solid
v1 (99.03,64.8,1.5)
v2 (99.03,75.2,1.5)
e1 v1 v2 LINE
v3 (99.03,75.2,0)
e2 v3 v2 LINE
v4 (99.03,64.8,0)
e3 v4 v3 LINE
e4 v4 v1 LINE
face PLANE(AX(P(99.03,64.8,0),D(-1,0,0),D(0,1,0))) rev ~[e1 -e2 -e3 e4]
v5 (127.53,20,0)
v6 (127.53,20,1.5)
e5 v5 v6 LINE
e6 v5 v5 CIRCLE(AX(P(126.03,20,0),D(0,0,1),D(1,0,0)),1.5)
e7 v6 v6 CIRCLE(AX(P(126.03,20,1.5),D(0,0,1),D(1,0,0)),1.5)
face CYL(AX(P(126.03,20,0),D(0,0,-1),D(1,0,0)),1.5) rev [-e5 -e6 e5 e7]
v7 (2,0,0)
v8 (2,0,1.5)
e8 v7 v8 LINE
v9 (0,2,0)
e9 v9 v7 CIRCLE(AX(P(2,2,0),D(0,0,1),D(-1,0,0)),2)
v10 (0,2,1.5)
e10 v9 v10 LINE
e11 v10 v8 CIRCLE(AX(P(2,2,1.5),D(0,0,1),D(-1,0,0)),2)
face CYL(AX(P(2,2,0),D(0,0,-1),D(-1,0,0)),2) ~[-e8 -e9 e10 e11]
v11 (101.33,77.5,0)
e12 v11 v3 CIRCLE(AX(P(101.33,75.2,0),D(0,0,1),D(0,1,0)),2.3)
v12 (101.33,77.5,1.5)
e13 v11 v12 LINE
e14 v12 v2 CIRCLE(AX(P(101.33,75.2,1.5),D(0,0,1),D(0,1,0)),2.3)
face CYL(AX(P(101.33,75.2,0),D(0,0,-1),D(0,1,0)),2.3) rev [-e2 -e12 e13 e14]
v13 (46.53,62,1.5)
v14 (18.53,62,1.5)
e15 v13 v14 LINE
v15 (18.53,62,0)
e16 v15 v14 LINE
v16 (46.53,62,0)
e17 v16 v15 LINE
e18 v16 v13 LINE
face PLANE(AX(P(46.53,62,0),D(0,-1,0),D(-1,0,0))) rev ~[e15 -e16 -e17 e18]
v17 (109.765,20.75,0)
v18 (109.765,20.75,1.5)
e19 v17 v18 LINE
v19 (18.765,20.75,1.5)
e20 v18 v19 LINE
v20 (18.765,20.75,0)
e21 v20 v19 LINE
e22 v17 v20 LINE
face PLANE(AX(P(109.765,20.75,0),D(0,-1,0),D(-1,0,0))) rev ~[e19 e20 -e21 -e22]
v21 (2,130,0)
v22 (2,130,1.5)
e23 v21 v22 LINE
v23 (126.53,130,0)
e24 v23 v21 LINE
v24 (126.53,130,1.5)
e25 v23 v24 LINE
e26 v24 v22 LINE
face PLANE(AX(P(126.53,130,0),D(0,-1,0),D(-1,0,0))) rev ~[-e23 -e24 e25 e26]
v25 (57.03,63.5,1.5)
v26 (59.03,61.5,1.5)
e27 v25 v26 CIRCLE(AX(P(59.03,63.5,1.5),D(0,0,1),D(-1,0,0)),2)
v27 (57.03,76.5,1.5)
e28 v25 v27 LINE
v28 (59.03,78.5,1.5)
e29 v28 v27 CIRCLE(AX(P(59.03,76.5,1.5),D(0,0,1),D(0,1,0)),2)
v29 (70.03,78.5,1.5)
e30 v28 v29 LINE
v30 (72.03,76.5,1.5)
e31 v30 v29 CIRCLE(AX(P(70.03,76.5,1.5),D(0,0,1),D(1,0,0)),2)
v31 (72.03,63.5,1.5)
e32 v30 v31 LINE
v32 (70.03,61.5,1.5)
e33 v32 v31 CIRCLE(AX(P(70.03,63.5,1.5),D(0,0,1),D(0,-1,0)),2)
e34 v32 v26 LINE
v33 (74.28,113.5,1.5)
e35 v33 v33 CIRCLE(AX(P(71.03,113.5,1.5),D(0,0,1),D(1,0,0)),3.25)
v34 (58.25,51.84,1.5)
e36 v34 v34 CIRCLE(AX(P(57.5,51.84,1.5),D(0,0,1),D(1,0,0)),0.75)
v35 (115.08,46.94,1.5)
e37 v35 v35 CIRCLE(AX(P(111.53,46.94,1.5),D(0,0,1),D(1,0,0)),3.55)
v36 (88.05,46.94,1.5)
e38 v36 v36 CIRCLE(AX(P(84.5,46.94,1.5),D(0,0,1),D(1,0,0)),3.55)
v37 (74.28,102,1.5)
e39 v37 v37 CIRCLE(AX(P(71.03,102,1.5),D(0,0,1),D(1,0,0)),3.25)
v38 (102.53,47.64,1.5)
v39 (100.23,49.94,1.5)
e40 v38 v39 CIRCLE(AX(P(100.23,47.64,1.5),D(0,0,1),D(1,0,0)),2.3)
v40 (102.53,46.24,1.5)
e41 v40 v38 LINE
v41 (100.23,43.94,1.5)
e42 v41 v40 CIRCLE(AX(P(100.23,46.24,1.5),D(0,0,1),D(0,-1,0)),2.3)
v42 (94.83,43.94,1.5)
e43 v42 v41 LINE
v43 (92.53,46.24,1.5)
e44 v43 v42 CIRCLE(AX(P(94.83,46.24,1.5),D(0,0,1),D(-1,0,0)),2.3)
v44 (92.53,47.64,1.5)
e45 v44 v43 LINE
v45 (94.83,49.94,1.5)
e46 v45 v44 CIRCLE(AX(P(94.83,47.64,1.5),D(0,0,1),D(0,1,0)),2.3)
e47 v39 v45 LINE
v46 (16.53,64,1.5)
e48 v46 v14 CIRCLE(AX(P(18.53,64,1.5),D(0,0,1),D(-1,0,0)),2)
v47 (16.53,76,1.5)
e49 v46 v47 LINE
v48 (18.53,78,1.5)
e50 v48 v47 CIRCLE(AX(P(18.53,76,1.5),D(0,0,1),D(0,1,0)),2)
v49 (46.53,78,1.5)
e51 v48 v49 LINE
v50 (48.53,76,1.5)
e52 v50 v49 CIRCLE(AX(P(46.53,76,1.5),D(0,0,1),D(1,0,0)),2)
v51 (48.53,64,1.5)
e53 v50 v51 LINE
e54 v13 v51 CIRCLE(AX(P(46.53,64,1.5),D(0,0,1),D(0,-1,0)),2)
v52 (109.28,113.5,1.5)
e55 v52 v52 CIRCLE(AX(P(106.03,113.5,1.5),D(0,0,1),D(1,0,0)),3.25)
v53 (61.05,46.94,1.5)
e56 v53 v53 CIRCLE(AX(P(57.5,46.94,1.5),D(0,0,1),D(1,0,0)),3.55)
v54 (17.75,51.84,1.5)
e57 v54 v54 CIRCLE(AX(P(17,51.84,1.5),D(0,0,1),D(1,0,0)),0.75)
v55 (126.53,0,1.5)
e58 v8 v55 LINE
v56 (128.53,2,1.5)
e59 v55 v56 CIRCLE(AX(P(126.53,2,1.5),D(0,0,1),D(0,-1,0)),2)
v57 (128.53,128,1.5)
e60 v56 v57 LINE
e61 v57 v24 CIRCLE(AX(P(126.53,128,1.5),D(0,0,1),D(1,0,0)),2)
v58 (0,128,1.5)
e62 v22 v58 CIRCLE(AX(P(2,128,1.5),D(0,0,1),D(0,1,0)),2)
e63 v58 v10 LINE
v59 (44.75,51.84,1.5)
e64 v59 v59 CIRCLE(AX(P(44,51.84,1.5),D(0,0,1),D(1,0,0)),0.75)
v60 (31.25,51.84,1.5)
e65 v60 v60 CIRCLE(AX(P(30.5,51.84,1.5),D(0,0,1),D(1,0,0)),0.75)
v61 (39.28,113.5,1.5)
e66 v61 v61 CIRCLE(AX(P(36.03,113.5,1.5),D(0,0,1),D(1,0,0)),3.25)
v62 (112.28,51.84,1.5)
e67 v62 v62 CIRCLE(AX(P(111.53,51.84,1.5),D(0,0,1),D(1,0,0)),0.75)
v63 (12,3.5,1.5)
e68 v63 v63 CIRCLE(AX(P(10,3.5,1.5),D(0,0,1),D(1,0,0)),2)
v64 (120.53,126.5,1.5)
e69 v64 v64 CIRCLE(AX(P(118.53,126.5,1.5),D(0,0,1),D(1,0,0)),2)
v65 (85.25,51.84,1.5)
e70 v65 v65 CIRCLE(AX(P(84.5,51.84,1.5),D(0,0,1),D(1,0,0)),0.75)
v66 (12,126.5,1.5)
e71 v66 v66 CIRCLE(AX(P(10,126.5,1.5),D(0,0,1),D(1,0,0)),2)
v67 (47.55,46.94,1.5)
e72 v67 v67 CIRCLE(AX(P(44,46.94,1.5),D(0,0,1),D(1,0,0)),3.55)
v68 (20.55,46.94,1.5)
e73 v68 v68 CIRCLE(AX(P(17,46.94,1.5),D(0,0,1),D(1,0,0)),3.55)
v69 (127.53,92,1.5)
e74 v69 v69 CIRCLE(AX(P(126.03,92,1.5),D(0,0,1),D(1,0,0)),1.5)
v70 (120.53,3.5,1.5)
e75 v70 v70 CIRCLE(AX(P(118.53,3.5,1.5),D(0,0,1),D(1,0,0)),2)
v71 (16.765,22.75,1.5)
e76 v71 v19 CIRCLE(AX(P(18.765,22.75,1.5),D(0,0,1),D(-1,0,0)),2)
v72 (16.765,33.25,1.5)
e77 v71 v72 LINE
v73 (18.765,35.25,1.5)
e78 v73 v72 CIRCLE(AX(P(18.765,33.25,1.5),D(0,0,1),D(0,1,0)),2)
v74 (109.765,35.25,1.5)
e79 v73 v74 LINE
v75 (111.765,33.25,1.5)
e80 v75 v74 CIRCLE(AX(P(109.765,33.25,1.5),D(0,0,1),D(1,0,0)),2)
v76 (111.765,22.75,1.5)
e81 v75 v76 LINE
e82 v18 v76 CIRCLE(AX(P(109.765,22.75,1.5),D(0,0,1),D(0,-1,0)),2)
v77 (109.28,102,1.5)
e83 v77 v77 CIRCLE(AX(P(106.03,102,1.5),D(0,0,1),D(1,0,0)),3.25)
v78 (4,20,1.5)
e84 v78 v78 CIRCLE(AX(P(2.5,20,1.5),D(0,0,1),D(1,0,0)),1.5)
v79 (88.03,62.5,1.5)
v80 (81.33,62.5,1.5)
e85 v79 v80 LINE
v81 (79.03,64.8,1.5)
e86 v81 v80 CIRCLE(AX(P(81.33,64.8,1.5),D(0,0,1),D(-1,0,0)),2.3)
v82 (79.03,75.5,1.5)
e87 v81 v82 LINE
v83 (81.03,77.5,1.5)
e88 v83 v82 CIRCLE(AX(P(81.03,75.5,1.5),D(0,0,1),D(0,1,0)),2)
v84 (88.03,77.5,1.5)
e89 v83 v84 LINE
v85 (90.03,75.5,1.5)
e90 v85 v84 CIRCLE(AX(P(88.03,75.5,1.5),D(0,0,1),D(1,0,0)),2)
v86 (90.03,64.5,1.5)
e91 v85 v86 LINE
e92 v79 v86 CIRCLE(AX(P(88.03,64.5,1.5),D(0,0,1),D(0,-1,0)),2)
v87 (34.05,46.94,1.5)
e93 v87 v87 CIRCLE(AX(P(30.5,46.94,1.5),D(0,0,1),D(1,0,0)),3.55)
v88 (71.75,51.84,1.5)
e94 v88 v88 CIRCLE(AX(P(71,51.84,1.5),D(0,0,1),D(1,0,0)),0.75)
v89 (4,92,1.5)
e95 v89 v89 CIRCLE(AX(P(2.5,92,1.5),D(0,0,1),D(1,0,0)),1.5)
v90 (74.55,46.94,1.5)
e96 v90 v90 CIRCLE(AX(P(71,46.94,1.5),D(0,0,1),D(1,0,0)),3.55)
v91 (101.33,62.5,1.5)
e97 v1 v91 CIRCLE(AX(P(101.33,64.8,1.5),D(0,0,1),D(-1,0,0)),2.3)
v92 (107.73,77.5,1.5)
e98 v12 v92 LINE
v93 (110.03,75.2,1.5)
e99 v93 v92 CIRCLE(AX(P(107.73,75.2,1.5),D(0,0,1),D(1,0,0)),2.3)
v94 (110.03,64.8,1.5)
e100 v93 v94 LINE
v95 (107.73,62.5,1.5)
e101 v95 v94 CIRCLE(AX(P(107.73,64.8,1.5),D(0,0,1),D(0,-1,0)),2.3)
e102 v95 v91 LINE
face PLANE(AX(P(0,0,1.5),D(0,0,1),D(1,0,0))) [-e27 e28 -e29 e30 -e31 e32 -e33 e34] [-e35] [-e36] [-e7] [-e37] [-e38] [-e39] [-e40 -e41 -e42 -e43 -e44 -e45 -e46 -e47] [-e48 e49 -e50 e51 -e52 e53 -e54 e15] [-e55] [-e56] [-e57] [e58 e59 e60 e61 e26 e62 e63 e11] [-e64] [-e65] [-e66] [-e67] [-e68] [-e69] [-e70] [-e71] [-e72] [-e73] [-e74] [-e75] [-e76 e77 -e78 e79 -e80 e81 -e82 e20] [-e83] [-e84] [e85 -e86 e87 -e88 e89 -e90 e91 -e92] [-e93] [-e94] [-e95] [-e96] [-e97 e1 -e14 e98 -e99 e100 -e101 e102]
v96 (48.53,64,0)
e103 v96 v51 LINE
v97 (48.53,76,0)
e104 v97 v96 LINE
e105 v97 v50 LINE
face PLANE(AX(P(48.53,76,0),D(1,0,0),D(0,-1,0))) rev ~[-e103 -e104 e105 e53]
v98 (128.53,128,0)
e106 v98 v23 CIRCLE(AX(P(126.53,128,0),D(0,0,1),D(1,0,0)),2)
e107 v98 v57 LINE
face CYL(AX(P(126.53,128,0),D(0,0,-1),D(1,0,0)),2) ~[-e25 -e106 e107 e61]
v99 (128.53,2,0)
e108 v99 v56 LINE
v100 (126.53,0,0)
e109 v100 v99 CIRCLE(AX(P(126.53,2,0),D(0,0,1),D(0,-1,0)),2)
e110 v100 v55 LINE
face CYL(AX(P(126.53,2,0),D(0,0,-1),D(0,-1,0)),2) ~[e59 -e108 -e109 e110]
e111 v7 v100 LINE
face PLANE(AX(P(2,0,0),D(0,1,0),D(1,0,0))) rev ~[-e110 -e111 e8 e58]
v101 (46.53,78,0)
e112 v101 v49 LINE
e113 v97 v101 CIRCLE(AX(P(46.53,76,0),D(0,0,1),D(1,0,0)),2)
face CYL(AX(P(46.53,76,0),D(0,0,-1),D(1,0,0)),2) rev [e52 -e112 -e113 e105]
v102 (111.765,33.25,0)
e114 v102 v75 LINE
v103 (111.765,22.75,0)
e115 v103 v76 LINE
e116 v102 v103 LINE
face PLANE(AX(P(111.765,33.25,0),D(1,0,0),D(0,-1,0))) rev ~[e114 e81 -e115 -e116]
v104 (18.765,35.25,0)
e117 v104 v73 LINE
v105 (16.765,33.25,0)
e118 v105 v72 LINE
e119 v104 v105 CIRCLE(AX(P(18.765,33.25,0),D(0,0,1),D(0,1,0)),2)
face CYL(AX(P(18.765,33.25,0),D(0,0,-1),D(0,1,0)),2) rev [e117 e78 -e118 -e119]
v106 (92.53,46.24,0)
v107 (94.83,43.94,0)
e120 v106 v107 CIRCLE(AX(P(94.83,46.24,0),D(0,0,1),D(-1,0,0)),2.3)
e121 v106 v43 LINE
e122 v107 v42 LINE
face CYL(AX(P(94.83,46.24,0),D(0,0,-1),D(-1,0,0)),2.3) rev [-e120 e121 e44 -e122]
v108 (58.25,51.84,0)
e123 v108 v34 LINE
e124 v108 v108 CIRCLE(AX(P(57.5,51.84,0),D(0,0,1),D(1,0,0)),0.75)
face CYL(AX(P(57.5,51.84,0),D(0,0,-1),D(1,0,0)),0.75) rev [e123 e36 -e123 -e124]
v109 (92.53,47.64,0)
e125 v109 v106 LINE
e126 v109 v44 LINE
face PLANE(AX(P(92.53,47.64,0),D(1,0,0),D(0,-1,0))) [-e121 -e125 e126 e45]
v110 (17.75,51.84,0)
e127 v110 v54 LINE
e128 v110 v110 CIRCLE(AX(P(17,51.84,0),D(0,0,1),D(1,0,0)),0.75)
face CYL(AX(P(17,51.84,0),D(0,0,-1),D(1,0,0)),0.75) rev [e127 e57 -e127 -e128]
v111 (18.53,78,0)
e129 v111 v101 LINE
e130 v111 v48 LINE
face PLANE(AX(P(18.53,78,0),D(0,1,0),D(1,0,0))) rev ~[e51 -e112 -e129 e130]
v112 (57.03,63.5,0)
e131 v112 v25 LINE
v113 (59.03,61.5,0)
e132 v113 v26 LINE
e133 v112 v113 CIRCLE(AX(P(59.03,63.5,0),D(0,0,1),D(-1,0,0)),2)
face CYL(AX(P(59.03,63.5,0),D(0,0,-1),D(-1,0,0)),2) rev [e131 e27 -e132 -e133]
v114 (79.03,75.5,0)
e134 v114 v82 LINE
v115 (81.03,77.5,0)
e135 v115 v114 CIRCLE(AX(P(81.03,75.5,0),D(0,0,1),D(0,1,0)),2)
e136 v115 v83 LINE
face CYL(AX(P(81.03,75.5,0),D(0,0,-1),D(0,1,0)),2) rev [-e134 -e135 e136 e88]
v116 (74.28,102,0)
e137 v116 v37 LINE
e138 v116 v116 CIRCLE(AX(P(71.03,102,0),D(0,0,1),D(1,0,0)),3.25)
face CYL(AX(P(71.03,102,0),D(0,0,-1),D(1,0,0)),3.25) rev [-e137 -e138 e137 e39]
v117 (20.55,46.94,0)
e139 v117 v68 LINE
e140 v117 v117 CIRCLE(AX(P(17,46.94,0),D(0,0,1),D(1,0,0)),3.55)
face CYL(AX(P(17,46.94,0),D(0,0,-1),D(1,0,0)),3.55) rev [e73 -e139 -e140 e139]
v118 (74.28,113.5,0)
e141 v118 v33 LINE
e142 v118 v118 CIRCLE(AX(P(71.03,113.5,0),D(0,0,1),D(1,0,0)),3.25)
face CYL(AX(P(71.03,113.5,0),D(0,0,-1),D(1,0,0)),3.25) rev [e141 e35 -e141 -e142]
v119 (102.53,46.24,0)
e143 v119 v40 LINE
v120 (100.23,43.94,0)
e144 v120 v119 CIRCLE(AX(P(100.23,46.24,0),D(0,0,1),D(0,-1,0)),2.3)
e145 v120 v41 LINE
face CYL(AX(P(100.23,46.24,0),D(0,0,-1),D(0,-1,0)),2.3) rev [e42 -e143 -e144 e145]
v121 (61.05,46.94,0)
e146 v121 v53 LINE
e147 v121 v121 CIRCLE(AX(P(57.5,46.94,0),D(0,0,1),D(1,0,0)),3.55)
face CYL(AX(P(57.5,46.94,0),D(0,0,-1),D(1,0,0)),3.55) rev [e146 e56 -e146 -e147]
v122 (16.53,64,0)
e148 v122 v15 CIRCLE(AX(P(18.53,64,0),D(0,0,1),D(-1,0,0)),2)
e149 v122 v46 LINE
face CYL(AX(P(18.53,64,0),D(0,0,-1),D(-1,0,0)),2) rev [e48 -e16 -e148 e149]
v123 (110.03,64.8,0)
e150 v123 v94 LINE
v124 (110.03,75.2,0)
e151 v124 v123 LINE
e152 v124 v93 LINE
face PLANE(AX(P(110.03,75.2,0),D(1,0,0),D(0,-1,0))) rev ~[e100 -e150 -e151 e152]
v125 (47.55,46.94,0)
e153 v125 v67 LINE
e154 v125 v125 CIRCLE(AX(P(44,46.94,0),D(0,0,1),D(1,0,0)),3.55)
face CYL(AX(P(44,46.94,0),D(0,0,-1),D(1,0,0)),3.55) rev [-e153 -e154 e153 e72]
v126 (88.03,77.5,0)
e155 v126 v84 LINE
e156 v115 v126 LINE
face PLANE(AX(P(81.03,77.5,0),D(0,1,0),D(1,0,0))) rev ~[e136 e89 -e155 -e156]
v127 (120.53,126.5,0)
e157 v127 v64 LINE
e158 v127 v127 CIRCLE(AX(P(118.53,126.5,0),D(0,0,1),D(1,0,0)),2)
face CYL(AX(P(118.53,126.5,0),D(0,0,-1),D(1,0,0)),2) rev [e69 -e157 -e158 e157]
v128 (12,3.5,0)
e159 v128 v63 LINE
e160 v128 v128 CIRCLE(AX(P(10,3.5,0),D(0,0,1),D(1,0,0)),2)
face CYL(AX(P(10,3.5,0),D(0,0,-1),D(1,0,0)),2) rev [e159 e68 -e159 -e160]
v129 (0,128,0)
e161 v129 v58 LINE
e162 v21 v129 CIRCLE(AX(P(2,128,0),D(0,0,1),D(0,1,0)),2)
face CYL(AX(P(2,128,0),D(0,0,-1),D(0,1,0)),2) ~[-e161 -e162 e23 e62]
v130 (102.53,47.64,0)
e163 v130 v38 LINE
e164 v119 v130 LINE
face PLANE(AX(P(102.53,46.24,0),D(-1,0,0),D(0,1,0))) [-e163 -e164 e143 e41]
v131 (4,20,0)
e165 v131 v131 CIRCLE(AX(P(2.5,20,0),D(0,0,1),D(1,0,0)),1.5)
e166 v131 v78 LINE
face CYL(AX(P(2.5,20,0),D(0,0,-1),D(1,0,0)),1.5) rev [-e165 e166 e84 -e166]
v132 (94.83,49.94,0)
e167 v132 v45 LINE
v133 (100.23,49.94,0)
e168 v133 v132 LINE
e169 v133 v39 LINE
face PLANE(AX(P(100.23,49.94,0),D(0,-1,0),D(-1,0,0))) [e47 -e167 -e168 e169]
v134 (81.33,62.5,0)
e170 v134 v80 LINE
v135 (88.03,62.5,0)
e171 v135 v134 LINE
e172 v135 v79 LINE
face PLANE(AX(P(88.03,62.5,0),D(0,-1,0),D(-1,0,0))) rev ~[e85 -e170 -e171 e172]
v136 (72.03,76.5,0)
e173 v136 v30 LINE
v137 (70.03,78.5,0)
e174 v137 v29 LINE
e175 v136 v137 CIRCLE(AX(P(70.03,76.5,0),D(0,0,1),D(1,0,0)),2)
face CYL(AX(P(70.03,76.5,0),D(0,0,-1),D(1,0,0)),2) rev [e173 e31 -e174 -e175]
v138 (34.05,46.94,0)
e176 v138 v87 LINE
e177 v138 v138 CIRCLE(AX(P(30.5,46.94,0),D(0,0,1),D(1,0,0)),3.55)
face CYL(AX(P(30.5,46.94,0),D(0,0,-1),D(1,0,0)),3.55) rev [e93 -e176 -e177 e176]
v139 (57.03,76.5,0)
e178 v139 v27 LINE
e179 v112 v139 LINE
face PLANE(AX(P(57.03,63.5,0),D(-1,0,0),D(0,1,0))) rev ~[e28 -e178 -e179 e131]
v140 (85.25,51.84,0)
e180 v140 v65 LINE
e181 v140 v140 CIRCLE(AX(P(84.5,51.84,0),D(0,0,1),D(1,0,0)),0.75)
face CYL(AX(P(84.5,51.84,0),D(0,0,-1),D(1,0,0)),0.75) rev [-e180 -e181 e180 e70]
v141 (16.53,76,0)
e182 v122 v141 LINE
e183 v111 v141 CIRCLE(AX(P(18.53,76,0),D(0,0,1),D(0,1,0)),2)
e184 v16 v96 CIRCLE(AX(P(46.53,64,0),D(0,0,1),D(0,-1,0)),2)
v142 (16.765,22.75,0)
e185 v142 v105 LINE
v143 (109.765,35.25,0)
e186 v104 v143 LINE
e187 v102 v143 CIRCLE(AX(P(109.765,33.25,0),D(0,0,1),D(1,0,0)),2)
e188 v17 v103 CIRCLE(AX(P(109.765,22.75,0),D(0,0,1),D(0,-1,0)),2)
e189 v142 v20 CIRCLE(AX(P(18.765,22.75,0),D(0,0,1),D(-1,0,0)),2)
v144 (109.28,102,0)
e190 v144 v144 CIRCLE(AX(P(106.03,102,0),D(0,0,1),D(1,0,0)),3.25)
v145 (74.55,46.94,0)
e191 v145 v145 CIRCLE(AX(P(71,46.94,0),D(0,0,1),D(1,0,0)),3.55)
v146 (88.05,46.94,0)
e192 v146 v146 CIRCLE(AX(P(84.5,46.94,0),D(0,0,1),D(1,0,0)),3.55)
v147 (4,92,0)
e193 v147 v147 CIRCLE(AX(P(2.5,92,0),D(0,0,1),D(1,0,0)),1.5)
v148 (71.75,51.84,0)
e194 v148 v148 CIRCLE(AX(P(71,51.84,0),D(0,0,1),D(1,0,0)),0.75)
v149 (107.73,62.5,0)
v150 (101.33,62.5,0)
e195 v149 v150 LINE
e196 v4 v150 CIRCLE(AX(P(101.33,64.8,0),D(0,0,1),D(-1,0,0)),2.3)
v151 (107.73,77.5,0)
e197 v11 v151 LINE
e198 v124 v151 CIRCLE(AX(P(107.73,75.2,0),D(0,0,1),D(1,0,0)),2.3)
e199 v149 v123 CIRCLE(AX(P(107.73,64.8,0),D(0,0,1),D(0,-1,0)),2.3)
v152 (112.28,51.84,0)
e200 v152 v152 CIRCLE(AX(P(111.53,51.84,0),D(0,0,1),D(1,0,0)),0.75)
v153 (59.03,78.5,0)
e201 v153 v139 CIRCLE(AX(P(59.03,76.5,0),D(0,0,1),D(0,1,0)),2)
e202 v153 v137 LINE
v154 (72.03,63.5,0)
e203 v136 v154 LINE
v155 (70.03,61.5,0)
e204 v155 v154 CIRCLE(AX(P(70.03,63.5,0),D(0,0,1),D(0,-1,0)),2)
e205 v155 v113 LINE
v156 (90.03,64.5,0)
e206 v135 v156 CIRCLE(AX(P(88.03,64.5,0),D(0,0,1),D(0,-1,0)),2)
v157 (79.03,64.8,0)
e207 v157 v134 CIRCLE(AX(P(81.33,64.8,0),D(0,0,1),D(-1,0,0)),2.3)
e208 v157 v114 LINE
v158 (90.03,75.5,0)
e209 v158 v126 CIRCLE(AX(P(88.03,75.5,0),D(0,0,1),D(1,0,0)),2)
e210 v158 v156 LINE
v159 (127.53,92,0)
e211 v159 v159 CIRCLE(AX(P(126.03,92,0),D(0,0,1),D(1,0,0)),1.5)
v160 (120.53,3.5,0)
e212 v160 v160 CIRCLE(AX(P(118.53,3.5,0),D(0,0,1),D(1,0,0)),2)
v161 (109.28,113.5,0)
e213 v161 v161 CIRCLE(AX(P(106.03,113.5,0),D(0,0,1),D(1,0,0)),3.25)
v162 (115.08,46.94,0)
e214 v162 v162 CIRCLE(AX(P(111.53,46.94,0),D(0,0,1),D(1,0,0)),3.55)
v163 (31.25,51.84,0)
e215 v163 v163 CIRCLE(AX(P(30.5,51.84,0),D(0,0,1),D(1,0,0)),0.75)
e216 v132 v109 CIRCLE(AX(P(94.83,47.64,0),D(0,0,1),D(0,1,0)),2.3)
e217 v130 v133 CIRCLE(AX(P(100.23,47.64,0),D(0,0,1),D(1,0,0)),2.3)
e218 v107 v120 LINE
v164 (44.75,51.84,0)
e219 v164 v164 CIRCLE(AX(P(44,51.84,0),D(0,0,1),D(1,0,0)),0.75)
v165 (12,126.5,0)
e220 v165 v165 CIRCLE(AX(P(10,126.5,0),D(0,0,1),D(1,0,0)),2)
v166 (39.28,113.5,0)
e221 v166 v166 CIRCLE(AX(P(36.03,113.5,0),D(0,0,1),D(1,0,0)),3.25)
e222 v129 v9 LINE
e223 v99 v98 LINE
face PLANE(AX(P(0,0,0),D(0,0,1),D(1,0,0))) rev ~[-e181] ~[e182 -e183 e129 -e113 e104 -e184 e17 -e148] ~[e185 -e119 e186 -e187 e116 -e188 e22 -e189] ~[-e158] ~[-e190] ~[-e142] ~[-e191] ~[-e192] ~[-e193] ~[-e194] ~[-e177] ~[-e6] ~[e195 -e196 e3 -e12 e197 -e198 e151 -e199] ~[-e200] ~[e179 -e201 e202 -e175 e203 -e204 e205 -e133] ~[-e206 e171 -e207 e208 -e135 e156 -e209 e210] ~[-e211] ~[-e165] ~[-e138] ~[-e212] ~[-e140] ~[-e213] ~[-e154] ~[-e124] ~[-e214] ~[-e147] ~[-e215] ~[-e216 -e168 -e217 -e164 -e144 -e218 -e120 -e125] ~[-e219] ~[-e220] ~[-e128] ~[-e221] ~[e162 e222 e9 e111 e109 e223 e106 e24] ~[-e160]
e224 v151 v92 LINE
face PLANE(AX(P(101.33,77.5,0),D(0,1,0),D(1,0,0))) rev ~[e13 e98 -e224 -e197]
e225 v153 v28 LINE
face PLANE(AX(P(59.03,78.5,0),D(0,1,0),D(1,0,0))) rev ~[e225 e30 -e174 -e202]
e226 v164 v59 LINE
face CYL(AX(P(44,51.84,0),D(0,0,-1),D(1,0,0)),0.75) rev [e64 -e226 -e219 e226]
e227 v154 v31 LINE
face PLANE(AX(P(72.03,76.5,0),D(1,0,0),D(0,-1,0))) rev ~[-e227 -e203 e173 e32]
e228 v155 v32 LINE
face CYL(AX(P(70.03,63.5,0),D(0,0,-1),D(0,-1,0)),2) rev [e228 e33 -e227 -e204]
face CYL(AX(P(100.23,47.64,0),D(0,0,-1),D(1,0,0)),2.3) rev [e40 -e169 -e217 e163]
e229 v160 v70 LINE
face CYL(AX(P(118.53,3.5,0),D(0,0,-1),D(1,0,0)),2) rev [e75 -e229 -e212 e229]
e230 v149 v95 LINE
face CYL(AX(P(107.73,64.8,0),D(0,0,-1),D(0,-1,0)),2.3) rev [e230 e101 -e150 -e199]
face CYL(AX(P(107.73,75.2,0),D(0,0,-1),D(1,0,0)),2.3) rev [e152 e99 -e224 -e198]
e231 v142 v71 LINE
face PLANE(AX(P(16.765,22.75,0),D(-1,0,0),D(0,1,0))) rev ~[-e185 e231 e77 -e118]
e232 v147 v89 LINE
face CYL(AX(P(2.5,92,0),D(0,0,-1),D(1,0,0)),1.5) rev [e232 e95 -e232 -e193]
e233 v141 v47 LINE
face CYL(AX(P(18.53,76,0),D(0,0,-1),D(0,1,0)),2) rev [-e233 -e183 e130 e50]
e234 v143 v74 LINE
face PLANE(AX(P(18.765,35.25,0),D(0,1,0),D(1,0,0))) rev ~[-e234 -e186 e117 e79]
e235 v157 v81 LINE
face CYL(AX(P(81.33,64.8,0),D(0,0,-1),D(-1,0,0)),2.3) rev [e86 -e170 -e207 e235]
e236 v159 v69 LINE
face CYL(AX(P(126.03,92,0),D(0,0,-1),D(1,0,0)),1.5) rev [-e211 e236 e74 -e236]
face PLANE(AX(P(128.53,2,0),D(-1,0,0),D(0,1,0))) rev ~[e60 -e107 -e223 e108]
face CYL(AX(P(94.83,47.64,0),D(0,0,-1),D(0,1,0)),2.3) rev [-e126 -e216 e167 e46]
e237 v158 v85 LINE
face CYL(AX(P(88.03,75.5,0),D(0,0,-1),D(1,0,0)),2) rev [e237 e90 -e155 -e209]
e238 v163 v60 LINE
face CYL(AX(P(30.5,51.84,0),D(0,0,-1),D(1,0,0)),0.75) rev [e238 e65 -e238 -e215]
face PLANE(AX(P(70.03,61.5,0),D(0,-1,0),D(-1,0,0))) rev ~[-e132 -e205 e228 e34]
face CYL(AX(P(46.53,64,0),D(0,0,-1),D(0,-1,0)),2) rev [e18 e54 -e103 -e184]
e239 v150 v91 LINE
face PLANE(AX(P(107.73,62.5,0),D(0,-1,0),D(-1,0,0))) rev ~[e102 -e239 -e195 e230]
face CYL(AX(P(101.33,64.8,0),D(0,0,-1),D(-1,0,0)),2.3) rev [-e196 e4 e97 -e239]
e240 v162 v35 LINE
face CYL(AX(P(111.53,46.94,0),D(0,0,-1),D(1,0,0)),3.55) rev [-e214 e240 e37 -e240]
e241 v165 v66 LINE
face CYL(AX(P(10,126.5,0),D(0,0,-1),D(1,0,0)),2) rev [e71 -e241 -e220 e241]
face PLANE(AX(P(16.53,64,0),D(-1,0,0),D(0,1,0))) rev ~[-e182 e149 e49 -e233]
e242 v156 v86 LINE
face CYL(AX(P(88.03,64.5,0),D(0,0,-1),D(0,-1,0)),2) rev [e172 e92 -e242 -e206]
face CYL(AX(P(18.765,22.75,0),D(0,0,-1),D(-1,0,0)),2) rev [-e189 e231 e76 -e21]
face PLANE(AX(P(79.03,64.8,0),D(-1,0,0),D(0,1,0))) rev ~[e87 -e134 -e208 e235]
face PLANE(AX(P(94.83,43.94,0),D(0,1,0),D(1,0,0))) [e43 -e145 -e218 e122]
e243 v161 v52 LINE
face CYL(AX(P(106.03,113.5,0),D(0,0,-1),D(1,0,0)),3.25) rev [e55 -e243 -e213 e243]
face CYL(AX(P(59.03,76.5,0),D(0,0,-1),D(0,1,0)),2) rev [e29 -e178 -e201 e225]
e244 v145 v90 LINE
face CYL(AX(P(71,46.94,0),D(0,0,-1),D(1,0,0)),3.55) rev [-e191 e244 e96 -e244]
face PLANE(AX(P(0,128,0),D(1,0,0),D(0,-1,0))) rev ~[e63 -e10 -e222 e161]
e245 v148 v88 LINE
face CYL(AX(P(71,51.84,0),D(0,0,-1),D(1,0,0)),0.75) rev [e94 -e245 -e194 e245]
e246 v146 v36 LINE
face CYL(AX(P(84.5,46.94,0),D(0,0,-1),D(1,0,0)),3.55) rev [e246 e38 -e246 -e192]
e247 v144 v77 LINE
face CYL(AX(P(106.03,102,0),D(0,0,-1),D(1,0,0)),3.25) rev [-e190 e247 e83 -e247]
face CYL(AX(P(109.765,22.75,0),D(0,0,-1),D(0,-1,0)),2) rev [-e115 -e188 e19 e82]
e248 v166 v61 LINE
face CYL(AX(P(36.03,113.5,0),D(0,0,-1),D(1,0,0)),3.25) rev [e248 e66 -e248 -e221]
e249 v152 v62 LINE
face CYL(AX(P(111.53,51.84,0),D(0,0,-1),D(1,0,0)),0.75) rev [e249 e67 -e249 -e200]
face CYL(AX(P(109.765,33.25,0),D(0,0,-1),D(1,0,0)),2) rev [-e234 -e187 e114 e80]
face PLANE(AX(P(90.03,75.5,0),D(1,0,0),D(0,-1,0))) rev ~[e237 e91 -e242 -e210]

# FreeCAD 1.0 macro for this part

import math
import FreeCAD as App
import Part
import Sketcher
from FreeCAD import Vector

doc = App.newDocument("Part")
body = doc.addObject("PartDesign::Body", "Body")

# Sketch on XY plane
sketch1 = body.newObject("Sketcher::SketchObject", "Sketch")
sketch1.AttachmentSupport = (doc.getObject("XY_Plane"), [""])
sketch1.MapMode = "FlatFace"
sketch1.addGeometry([
    Part.ArcOfCircle(Part.Circle(Vector(2, 2, 0), Vector(0, 0, 1), 2), math.radians(180), math.radians(270)),  # 0
    Part.LineSegment(Vector(2, 0, 0), Vector(126.53, 0, 0)),  # 1
    Part.ArcOfCircle(Part.Circle(Vector(126.53, 2, 0), Vector(0, 0, 1), 2), math.radians(-90), math.radians(0)),  # 2
    Part.LineSegment(Vector(128.53, 2, 0), Vector(128.53, 128, 0)),  # 3
    Part.ArcOfCircle(Part.Circle(Vector(126.53, 128, 0), Vector(0, 0, 1), 2), math.radians(0), math.radians(90)),  # 4
    Part.LineSegment(Vector(126.53, 130, 0), Vector(2, 130, 0)),  # 5
    Part.ArcOfCircle(Part.Circle(Vector(2, 128, 0), Vector(0, 0, 1), 2), math.radians(90), math.radians(180)),  # 6
    Part.LineSegment(Vector(0, 128, 0), Vector(0, 2, 0)),  # 7
    Part.Circle(Vector(10, 3.5, 0), Vector(0, 0, 1), 2),  # 8
    Part.Circle(Vector(2.5, 20, 0), Vector(0, 0, 1), 1.5),  # 9
    Part.Circle(Vector(17, 46.94, 0), Vector(0, 0, 1), 3.55),  # 10
    Part.Circle(Vector(30.5, 46.94, 0), Vector(0, 0, 1), 3.55),  # 11
    Part.Circle(Vector(17, 51.84, 0), Vector(0, 0, 1), 0.75),  # 12
    Part.Circle(Vector(30.5, 51.84, 0), Vector(0, 0, 1), 0.75),  # 13
    Part.Circle(Vector(44, 46.94, 0), Vector(0, 0, 1), 3.55),  # 14
    Part.Circle(Vector(57.5, 46.94, 0), Vector(0, 0, 1), 3.55),  # 15
    Part.Circle(Vector(44, 51.84, 0), Vector(0, 0, 1), 0.75),  # 16
    Part.Circle(Vector(57.5, 51.84, 0), Vector(0, 0, 1), 0.75),  # 17
    Part.ArcOfCircle(Part.Circle(Vector(109.765, 22.75, 0), Vector(0, 0, 1), 2), math.radians(-90), math.radians(0)),  # 18
    Part.LineSegment(Vector(109.765, 20.75, 0), Vector(18.765, 20.75, 0)),  # 19
    Part.ArcOfCircle(Part.Circle(Vector(18.765, 22.75, 0), Vector(0, 0, 1), 2), math.radians(180), math.radians(270)),  # 20
    Part.LineSegment(Vector(16.765, 22.75, 0), Vector(16.765, 33.25, 0)),  # 21
    Part.ArcOfCircle(Part.Circle(Vector(18.765, 33.25, 0), Vector(0, 0, 1), 2), math.radians(90), math.radians(180)),  # 22
    Part.LineSegment(Vector(18.765, 35.25, 0), Vector(109.765, 35.25, 0)),  # 23
    Part.ArcOfCircle(Part.Circle(Vector(109.765, 33.25, 0), Vector(0, 0, 1), 2), math.radians(0), math.radians(90)),  # 24
    Part.LineSegment(Vector(111.765, 33.25, 0), Vector(111.765, 22.75, 0)),  # 25
    Part.Circle(Vector(118.53, 3.5, 0), Vector(0, 0, 1), 2),  # 26
    Part.Circle(Vector(126.03, 20, 0), Vector(0, 0, 1), 1.5),  # 27
    Part.Circle(Vector(71, 46.94, 0), Vector(0, 0, 1), 3.55),  # 28
    Part.Circle(Vector(84.5, 46.94, 0), Vector(0, 0, 1), 3.55),  # 29
    Part.Circle(Vector(71, 51.84, 0), Vector(0, 0, 1), 0.75),  # 30
    Part.Circle(Vector(84.5, 51.84, 0), Vector(0, 0, 1), 0.75),  # 31
    Part.LineSegment(Vector(94.83, 49.94, 0), Vector(100.23, 49.94, 0)),  # 32
    Part.ArcOfCircle(Part.Circle(Vector(100.23, 47.64, 0), Vector(0, 0, 1), 2.3), math.radians(0), math.radians(90)),  # 33
    Part.LineSegment(Vector(102.53, 47.64, 0), Vector(102.53, 46.24, 0)),  # 34
    Part.ArcOfCircle(Part.Circle(Vector(100.23, 46.24, 0), Vector(0, 0, 1), 2.3), math.radians(-90), math.radians(0)),  # 35
    Part.LineSegment(Vector(100.23, 43.94, 0), Vector(94.83, 43.94, 0)),  # 36
    Part.ArcOfCircle(Part.Circle(Vector(94.83, 46.24, 0), Vector(0, 0, 1), 2.3), math.radians(180), math.radians(270)),  # 37
    Part.LineSegment(Vector(92.53, 46.24, 0), Vector(92.53, 47.64, 0)),  # 38
    Part.ArcOfCircle(Part.Circle(Vector(94.83, 47.64, 0), Vector(0, 0, 1), 2.3), math.radians(90), math.radians(180)),  # 39
    Part.Circle(Vector(111.53, 46.94, 0), Vector(0, 0, 1), 3.55),  # 40
    Part.Circle(Vector(111.53, 51.84, 0), Vector(0, 0, 1), 0.75),  # 41
    Part.Circle(Vector(2.5, 92, 0), Vector(0, 0, 1), 1.5),  # 42
    Part.ArcOfCircle(Part.Circle(Vector(46.53, 64, 0), Vector(0, 0, 1), 2), math.radians(-90), math.radians(0)),  # 43
    Part.LineSegment(Vector(46.53, 62, 0), Vector(18.53, 62, 0)),  # 44
    Part.ArcOfCircle(Part.Circle(Vector(18.53, 64, 0), Vector(0, 0, 1), 2), math.radians(180), math.radians(270)),  # 45
    Part.LineSegment(Vector(16.53, 64, 0), Vector(16.53, 76, 0)),  # 46
    Part.ArcOfCircle(Part.Circle(Vector(18.53, 76, 0), Vector(0, 0, 1), 2), math.radians(90), math.radians(180)),  # 47
    Part.LineSegment(Vector(18.53, 78, 0), Vector(46.53, 78, 0)),  # 48
    Part.ArcOfCircle(Part.Circle(Vector(46.53, 76, 0), Vector(0, 0, 1), 2), math.radians(0), math.radians(90)),  # 49
    Part.LineSegment(Vector(48.53, 76, 0), Vector(48.53, 64, 0)),  # 50
    Part.Circle(Vector(10, 126.5, 0), Vector(0, 0, 1), 2),  # 51
    Part.Circle(Vector(36.03, 113.5, 0), Vector(0, 0, 1), 3.25),  # 52
    Part.ArcOfCircle(Part.Circle(Vector(70.03, 63.5, 0), Vector(0, 0, 1), 2), math.radians(-90), math.radians(0)),  # 53
    Part.LineSegment(Vector(70.03, 61.5, 0), Vector(59.03, 61.5, 0)),  # 54
    Part.ArcOfCircle(Part.Circle(Vector(59.03, 63.5, 0), Vector(0, 0, 1), 2), math.radians(180), math.radians(270)),  # 55
    Part.LineSegment(Vector(57.03, 63.5, 0), Vector(57.03, 76.5, 0)),  # 56
    Part.ArcOfCircle(Part.Circle(Vector(59.03, 76.5, 0), Vector(0, 0, 1), 2), math.radians(90), math.radians(180)),  # 57
    Part.LineSegment(Vector(59.03, 78.5, 0), Vector(70.03, 78.5, 0)),  # 58
    Part.ArcOfCircle(Part.Circle(Vector(70.03, 76.5, 0), Vector(0, 0, 1), 2), math.radians(0), math.radians(90)),  # 59
    Part.LineSegment(Vector(72.03, 76.5, 0), Vector(72.03, 63.5, 0)),  # 60
    Part.ArcOfCircle(Part.Circle(Vector(88.03, 64.5, 0), Vector(0, 0, 1), 2), math.radians(-90), math.radians(0)),  # 61
    Part.LineSegment(Vector(88.03, 62.5, 0), Vector(81.33, 62.5, 0)),  # 62
    Part.ArcOfCircle(Part.Circle(Vector(81.33, 64.8, 0), Vector(0, 0, 1), 2.3), math.radians(180), math.radians(270)),  # 63
    Part.LineSegment(Vector(79.03, 64.8, 0), Vector(79.03, 75.5, 0)),  # 64
    Part.ArcOfCircle(Part.Circle(Vector(81.03, 75.5, 0), Vector(0, 0, 1), 2), math.radians(90), math.radians(180)),  # 65
    Part.LineSegment(Vector(81.03, 77.5, 0), Vector(88.03, 77.5, 0)),  # 66
    Part.ArcOfCircle(Part.Circle(Vector(88.03, 75.5, 0), Vector(0, 0, 1), 2), math.radians(0), math.radians(90)),  # 67
    Part.LineSegment(Vector(90.03, 75.5, 0), Vector(90.03, 64.5, 0)),  # 68
    Part.ArcOfCircle(Part.Circle(Vector(107.73, 64.8, 0), Vector(0, 0, 1), 2.3), math.radians(-90), math.radians(0)),  # 69
    Part.LineSegment(Vector(107.73, 62.5, 0), Vector(101.33, 62.5, 0)),  # 70
    Part.ArcOfCircle(Part.Circle(Vector(101.33, 64.8, 0), Vector(0, 0, 1), 2.3), math.radians(180), math.radians(270)),  # 71
    Part.LineSegment(Vector(99.03, 64.8, 0), Vector(99.03, 75.2, 0)),  # 72
    Part.ArcOfCircle(Part.Circle(Vector(101.33, 75.2, 0), Vector(0, 0, 1), 2.3), math.radians(90), math.radians(180)),  # 73
    Part.LineSegment(Vector(101.33, 77.5, 0), Vector(107.73, 77.5, 0)),  # 74
    Part.ArcOfCircle(Part.Circle(Vector(107.73, 75.2, 0), Vector(0, 0, 1), 2.3), math.radians(0), math.radians(90)),  # 75
    Part.LineSegment(Vector(110.03, 75.2, 0), Vector(110.03, 64.8, 0)),  # 76
    Part.Circle(Vector(126.03, 92, 0), Vector(0, 0, 1), 1.5),  # 77
    Part.Circle(Vector(71.03, 102, 0), Vector(0, 0, 1), 3.25),  # 78
    Part.Circle(Vector(71.03, 113.5, 0), Vector(0, 0, 1), 3.25),  # 79
    Part.Circle(Vector(106.03, 102, 0), Vector(0, 0, 1), 3.25),  # 80
    Part.Circle(Vector(106.03, 113.5, 0), Vector(0, 0, 1), 3.25),  # 81
    Part.Circle(Vector(118.53, 126.5, 0), Vector(0, 0, 1), 2),  # 82
], False)
sketch1.addConstraint([
    Sketcher.Constraint("Tangent", 0, 2, 1, 1),
    Sketcher.Constraint("Tangent", 1, 2, 2, 1),
    Sketcher.Constraint("Tangent", 2, 2, 3, 1),
    Sketcher.Constraint("Tangent", 3, 2, 4, 1),
    Sketcher.Constraint("Tangent", 4, 2, 5, 1),
    Sketcher.Constraint("Tangent", 5, 2, 6, 1),
    Sketcher.Constraint("Tangent", 6, 2, 7, 1),
    Sketcher.Constraint("Tangent", 7, 2, 0, 1),
    Sketcher.Constraint("Tangent", 18, 1, 19, 1),
    Sketcher.Constraint("Tangent", 19, 2, 20, 2),
    Sketcher.Constraint("Tangent", 20, 1, 21, 1),
    Sketcher.Constraint("Tangent", 21, 2, 22, 2),
    Sketcher.Constraint("Tangent", 22, 1, 23, 1),
    Sketcher.Constraint("Tangent", 23, 2, 24, 2),
    Sketcher.Constraint("Tangent", 24, 1, 25, 1),
    Sketcher.Constraint("Tangent", 25, 2, 18, 2),
    Sketcher.Constraint("Tangent", 32, 2, 33, 2),
    Sketcher.Constraint("Tangent", 33, 1, 34, 1),
    Sketcher.Constraint("Tangent", 34, 2, 35, 2),
    Sketcher.Constraint("Tangent", 35, 1, 36, 1),
    Sketcher.Constraint("Tangent", 36, 2, 37, 2),
    Sketcher.Constraint("Tangent", 37, 1, 38, 1),
    Sketcher.Constraint("Tangent", 38, 2, 39, 2),
    Sketcher.Constraint("Tangent", 39, 1, 32, 1),
    Sketcher.Constraint("Tangent", 43, 1, 44, 1),
    Sketcher.Constraint("Tangent", 44, 2, 45, 2),
    Sketcher.Constraint("Tangent", 45, 1, 46, 1),
    Sketcher.Constraint("Tangent", 46, 2, 47, 2),
    Sketcher.Constraint("Tangent", 47, 1, 48, 1),
    Sketcher.Constraint("Tangent", 48, 2, 49, 2),
    Sketcher.Constraint("Tangent", 49, 1, 50, 1),
    Sketcher.Constraint("Tangent", 50, 2, 43, 2),
    Sketcher.Constraint("Tangent", 53, 1, 54, 1),
    Sketcher.Constraint("Tangent", 54, 2, 55, 2),
    Sketcher.Constraint("Tangent", 55, 1, 56, 1),
    Sketcher.Constraint("Tangent", 56, 2, 57, 2),
    Sketcher.Constraint("Tangent", 57, 1, 58, 1),
    Sketcher.Constraint("Tangent", 58, 2, 59, 2),
    Sketcher.Constraint("Tangent", 59, 1, 60, 1),
    Sketcher.Constraint("Tangent", 60, 2, 53, 2),
    Sketcher.Constraint("Tangent", 61, 1, 62, 1),
    Sketcher.Constraint("Tangent", 62, 2, 63, 2),
    Sketcher.Constraint("Tangent", 63, 1, 64, 1),
    Sketcher.Constraint("Tangent", 64, 2, 65, 2),
    Sketcher.Constraint("Tangent", 65, 1, 66, 1),
    Sketcher.Constraint("Tangent", 66, 2, 67, 2),
    Sketcher.Constraint("Tangent", 67, 1, 68, 1),
    Sketcher.Constraint("Tangent", 68, 2, 61, 2),
    Sketcher.Constraint("Tangent", 69, 1, 70, 1),
    Sketcher.Constraint("Tangent", 70, 2, 71, 2),
    Sketcher.Constraint("Tangent", 71, 1, 72, 1),
    Sketcher.Constraint("Tangent", 72, 2, 73, 2),
    Sketcher.Constraint("Tangent", 73, 1, 74, 1),
    Sketcher.Constraint("Tangent", 74, 2, 75, 2),
    Sketcher.Constraint("Tangent", 75, 1, 76, 1),
    Sketcher.Constraint("Tangent", 76, 2, 69, 2),
    Sketcher.Constraint("Horizontal", 1),
    Sketcher.Constraint("Vertical", 3),
    Sketcher.Constraint("Horizontal", 5),
    Sketcher.Constraint("Vertical", 7),
    Sketcher.Constraint("Horizontal", 19),
    Sketcher.Constraint("Vertical", 21),
    Sketcher.Constraint("Horizontal", 23),
    Sketcher.Constraint("Vertical", 25),
    Sketcher.Constraint("Horizontal", 32),
    Sketcher.Constraint("Vertical", 34),
    Sketcher.Constraint("Horizontal", 36),
    Sketcher.Constraint("Vertical", 38),
    Sketcher.Constraint("Horizontal", 44),
    Sketcher.Constraint("Vertical", 46),
    Sketcher.Constraint("Horizontal", 48),
    Sketcher.Constraint("Vertical", 50),
    Sketcher.Constraint("Horizontal", 54),
    Sketcher.Constraint("Vertical", 56),
    Sketcher.Constraint("Horizontal", 58),
    Sketcher.Constraint("Vertical", 60),
    Sketcher.Constraint("Horizontal", 62),
    Sketcher.Constraint("Vertical", 64),
    Sketcher.Constraint("Horizontal", 66),
    Sketcher.Constraint("Vertical", 68),
    Sketcher.Constraint("Horizontal", 70),
    Sketcher.Constraint("Vertical", 72),
    Sketcher.Constraint("Horizontal", 74),
    Sketcher.Constraint("Vertical", 76),
    Sketcher.Constraint("Equal", 0, 2),
    Sketcher.Constraint("Equal", 2, 4),
    Sketcher.Constraint("Equal", 4, 6),
    Sketcher.Constraint("Equal", 6, 8),
    Sketcher.Constraint("Equal", 10, 11),
    Sketcher.Constraint("Equal", 12, 13),
    Sketcher.Constraint("Equal", 11, 14),
    Sketcher.Constraint("Equal", 14, 15),
    Sketcher.Constraint("Equal", 13, 16),
    Sketcher.Constraint("Equal", 16, 17),
    Sketcher.Constraint("Equal", 8, 18),
    Sketcher.Constraint("Equal", 18, 20),
    Sketcher.Constraint("Equal", 20, 22),
    Sketcher.Constraint("Equal", 22, 24),
    Sketcher.Constraint("Equal", 24, 26),
    Sketcher.Constraint("Equal", 9, 27),
    Sketcher.Constraint("Equal", 15, 28),
    Sketcher.Constraint("Equal", 28, 29),
    Sketcher.Constraint("Equal", 17, 30),
    Sketcher.Constraint("Equal", 30, 31),
    Sketcher.Constraint("Equal", 33, 35),
    Sketcher.Constraint("Equal", 35, 37),
    Sketcher.Constraint("Equal", 37, 39),
    Sketcher.Constraint("Equal", 29, 40),
    Sketcher.Constraint("Equal", 31, 41),
    Sketcher.Constraint("Equal", 27, 42),
    Sketcher.Constraint("Equal", 26, 43),
    Sketcher.Constraint("Equal", 43, 45),
    Sketcher.Constraint("Equal", 45, 47),
    Sketcher.Constraint("Equal", 47, 49),
    Sketcher.Constraint("Equal", 49, 51),
    Sketcher.Constraint("Equal", 51, 53),
    Sketcher.Constraint("Equal", 53, 55),
    Sketcher.Constraint("Equal", 55, 57),
    Sketcher.Constraint("Equal", 57, 59),
    Sketcher.Constraint("Equal", 59, 61),
    Sketcher.Constraint("Equal", 39, 63),
    Sketcher.Constraint("Equal", 61, 65),
    Sketcher.Constraint("Equal", 65, 67),
    Sketcher.Constraint("Equal", 63, 69),
    Sketcher.Constraint("Equal", 69, 71),
    Sketcher.Constraint("Equal", 71, 73),
    Sketcher.Constraint("Equal", 73, 75),
    Sketcher.Constraint("Equal", 42, 77),
    Sketcher.Constraint("Equal", 52, 78),
    Sketcher.Constraint("Equal", 78, 79),
    Sketcher.Constraint("Equal", 79, 80),
    Sketcher.Constraint("Equal", 80, 81),
    Sketcher.Constraint("Equal", 67, 82),
    Sketcher.Constraint("PointOnObject", 0, 2, -1),
    Sketcher.Constraint("PointOnObject", 6, 2, -2),
    Sketcher.Constraint("Horizontal", 10, 3, 11, 3),
    Sketcher.Constraint("Horizontal", 12, 3, 13, 3),
    Sketcher.Constraint("Horizontal", 11, 3, 14, 3),
    Sketcher.Constraint("Horizontal", 14, 3, 15, 3),
    Sketcher.Constraint("Horizontal", 13, 3, 16, 3),
    Sketcher.Constraint("Horizontal", 16, 3, 17, 3),
    Sketcher.Constraint("Horizontal", 8, 3, 26, 3),
    Sketcher.Constraint("Horizontal", 9, 3, 27, 3),
    Sketcher.Constraint("Horizontal", 15, 3, 28, 3),
    Sketcher.Constraint("Horizontal", 28, 3, 29, 3),
    Sketcher.Constraint("Horizontal", 17, 3, 30, 3),
    Sketcher.Constraint("Horizontal", 30, 3, 31, 3),
    Sketcher.Constraint("Horizontal", 29, 3, 40, 3),
    Sketcher.Constraint("Horizontal", 31, 3, 41, 3),
    Sketcher.Constraint("Horizontal", 63, 3, 69, 3),
    Sketcher.Constraint("Horizontal", 42, 3, 77, 3),
    Sketcher.Constraint("Horizontal", 52, 3, 79, 3),
    Sketcher.Constraint("Horizontal", 78, 3, 80, 3),
    Sketcher.Constraint("Horizontal", 79, 3, 81, 3),
    Sketcher.Constraint("Horizontal", 51, 3, 82, 3),
    Sketcher.Constraint("Horizontal", 66, 2, 73, 1),
    Sketcher.Constraint("Vertical", 10, 3, 12, 3),
    Sketcher.Constraint("Vertical", 11, 3, 13, 3),
    Sketcher.Constraint("Vertical", 14, 3, 16, 3),
    Sketcher.Constraint("Vertical", 15, 3, 17, 3),
    Sketcher.Constraint("Vertical", 28, 3, 30, 3),
    Sketcher.Constraint("Vertical", 29, 3, 31, 3),
    Sketcher.Constraint("Vertical", 40, 3, 41, 3),
    Sketcher.Constraint("Vertical", 9, 3, 42, 3),
    Sketcher.Constraint("Vertical", 8, 3, 51, 3),
    Sketcher.Constraint("Vertical", 27, 3, 77, 3),
    Sketcher.Constraint("Vertical", 78, 3, 79, 3),
    Sketcher.Constraint("Vertical", 80, 3, 81, 3),
    Sketcher.Constraint("Vertical", 26, 3, 82, 3),
    Sketcher.Constraint("Equal", 58, 68),
    Sketcher.Constraint("Diameter", 8, 4.0),
    Sketcher.Constraint("Diameter", 9, 3.0),
    Sketcher.Constraint("Diameter", 10, 7.1),
    Sketcher.Constraint("Diameter", 12, 1.5),
    Sketcher.Constraint("Diameter", 52, 6.5),
    Sketcher.Constraint("Radius", 33, 2.3),
    Sketcher.Constraint("DistanceX", 54, 2, 54, 1, 11.0),
    Sketcher.Constraint("DistanceX", -1, 1, 8, 3, 10.0),
    Sketcher.Constraint("DistanceY", -1, 1, 9, 3, 20.0),
    Sketcher.Constraint("DistanceX", -1, 1, 10, 3, 17.0),
    Sketcher.Constraint("DistanceY", -1, 1, 4, 2, 130.0),
    Sketcher.Constraint("DistanceY", -1, 1, 8, 3, 3.5),
    Sketcher.Constraint("DistanceX", -1, 1, 9, 3, 2.5),
    Sketcher.Constraint("DistanceX", 19, 2, 19, 1, 91.0),
    Sketcher.Constraint("DistanceX", 44, 2, 44, 1, 28.0),
    Sketcher.Constraint("DistanceX", 66, 1, 66, 2, 7.0),
    Sketcher.Constraint("DistanceY", 46, 1, 46, 2, 12.0),
    Sketcher.Constraint("DistanceY", 56, 1, 56, 2, 13.0),
    Sketcher.Constraint("DistanceX", -1, 1, 2, 2, 128.53),
    Sketcher.Constraint("DistanceX", 32, 1, 32, 2, 5.4),
    Sketcher.Constraint("DistanceX", 70, 2, 70, 1, 6.4),
    Sketcher.Constraint("DistanceY", 21, 1, 21, 2, 10.5),
    Sketcher.Constraint("DistanceY", 34, 2, 34, 1, 1.4),
    Sketcher.Constraint("DistanceX", -1, 1, 14, 3, 44.0),
    Sketcher.Constraint("DistanceX", -1, 1, 28, 3, 71.0),
    Sketcher.Constraint("DistanceY", -1, 1, 42, 3, 92.0),
    Sketcher.Constraint("DistanceY", -1, 1, 43, 3, 64.0),
    Sketcher.Constraint("DistanceY", -1, 1, 78, 3, 102.0),
    Sketcher.Constraint("DistanceX", -1, 1, 11, 3, 30.5),
    Sketcher.Constraint("DistanceX", -1, 1, 15, 3, 57.5),
    Sketcher.Constraint("DistanceX", -1, 1, 29, 3, 84.5),
    Sketcher.Constraint("DistanceY", -1, 1, 51, 3, 126.5),
    Sketcher.Constraint("DistanceY", -1, 1, 52, 3, 113.5),
    Sketcher.Constraint("DistanceY", -1, 1, 53, 3, 63.5),
    Sketcher.Constraint("DistanceY", -1, 1, 61, 3, 64.5),
    Sketcher.Constraint("DistanceY", -1, 1, 10, 3, 46.94),
    Sketcher.Constraint("DistanceY", -1, 1, 12, 3, 51.84),
    Sketcher.Constraint("DistanceY", -1, 1, 18, 3, 22.75),
    Sketcher.Constraint("DistanceX", -1, 1, 26, 3, 118.53),
    Sketcher.Constraint("DistanceX", -1, 1, 27, 3, 126.03),
    Sketcher.Constraint("DistanceX", -1, 1, 33, 3, 100.23),
    Sketcher.Constraint("DistanceY", -1, 1, 33, 3, 47.64),
    Sketcher.Constraint("DistanceX", -1, 1, 40, 3, 111.53),
    Sketcher.Constraint("DistanceX", -1, 1, 43, 3, 46.53),
    Sketcher.Constraint("DistanceX", -1, 1, 52, 3, 36.03),
    Sketcher.Constraint("DistanceX", -1, 1, 53, 3, 70.03),
    Sketcher.Constraint("DistanceX", -1, 1, 61, 3, 88.03),
    Sketcher.Constraint("DistanceX", -1, 1, 69, 3, 107.73),
    Sketcher.Constraint("DistanceX", -1, 1, 78, 3, 71.03),
    Sketcher.Constraint("DistanceX", -1, 1, 80, 3, 106.03),
    Sketcher.Constraint("DistanceX", -1, 1, 18, 3, 109.765),
])
pad1 = body.newObject("PartDesign::Pad", "Pad")
pad1.Profile = sketch1
pad1.Length = 1.5

doc.recompute()
